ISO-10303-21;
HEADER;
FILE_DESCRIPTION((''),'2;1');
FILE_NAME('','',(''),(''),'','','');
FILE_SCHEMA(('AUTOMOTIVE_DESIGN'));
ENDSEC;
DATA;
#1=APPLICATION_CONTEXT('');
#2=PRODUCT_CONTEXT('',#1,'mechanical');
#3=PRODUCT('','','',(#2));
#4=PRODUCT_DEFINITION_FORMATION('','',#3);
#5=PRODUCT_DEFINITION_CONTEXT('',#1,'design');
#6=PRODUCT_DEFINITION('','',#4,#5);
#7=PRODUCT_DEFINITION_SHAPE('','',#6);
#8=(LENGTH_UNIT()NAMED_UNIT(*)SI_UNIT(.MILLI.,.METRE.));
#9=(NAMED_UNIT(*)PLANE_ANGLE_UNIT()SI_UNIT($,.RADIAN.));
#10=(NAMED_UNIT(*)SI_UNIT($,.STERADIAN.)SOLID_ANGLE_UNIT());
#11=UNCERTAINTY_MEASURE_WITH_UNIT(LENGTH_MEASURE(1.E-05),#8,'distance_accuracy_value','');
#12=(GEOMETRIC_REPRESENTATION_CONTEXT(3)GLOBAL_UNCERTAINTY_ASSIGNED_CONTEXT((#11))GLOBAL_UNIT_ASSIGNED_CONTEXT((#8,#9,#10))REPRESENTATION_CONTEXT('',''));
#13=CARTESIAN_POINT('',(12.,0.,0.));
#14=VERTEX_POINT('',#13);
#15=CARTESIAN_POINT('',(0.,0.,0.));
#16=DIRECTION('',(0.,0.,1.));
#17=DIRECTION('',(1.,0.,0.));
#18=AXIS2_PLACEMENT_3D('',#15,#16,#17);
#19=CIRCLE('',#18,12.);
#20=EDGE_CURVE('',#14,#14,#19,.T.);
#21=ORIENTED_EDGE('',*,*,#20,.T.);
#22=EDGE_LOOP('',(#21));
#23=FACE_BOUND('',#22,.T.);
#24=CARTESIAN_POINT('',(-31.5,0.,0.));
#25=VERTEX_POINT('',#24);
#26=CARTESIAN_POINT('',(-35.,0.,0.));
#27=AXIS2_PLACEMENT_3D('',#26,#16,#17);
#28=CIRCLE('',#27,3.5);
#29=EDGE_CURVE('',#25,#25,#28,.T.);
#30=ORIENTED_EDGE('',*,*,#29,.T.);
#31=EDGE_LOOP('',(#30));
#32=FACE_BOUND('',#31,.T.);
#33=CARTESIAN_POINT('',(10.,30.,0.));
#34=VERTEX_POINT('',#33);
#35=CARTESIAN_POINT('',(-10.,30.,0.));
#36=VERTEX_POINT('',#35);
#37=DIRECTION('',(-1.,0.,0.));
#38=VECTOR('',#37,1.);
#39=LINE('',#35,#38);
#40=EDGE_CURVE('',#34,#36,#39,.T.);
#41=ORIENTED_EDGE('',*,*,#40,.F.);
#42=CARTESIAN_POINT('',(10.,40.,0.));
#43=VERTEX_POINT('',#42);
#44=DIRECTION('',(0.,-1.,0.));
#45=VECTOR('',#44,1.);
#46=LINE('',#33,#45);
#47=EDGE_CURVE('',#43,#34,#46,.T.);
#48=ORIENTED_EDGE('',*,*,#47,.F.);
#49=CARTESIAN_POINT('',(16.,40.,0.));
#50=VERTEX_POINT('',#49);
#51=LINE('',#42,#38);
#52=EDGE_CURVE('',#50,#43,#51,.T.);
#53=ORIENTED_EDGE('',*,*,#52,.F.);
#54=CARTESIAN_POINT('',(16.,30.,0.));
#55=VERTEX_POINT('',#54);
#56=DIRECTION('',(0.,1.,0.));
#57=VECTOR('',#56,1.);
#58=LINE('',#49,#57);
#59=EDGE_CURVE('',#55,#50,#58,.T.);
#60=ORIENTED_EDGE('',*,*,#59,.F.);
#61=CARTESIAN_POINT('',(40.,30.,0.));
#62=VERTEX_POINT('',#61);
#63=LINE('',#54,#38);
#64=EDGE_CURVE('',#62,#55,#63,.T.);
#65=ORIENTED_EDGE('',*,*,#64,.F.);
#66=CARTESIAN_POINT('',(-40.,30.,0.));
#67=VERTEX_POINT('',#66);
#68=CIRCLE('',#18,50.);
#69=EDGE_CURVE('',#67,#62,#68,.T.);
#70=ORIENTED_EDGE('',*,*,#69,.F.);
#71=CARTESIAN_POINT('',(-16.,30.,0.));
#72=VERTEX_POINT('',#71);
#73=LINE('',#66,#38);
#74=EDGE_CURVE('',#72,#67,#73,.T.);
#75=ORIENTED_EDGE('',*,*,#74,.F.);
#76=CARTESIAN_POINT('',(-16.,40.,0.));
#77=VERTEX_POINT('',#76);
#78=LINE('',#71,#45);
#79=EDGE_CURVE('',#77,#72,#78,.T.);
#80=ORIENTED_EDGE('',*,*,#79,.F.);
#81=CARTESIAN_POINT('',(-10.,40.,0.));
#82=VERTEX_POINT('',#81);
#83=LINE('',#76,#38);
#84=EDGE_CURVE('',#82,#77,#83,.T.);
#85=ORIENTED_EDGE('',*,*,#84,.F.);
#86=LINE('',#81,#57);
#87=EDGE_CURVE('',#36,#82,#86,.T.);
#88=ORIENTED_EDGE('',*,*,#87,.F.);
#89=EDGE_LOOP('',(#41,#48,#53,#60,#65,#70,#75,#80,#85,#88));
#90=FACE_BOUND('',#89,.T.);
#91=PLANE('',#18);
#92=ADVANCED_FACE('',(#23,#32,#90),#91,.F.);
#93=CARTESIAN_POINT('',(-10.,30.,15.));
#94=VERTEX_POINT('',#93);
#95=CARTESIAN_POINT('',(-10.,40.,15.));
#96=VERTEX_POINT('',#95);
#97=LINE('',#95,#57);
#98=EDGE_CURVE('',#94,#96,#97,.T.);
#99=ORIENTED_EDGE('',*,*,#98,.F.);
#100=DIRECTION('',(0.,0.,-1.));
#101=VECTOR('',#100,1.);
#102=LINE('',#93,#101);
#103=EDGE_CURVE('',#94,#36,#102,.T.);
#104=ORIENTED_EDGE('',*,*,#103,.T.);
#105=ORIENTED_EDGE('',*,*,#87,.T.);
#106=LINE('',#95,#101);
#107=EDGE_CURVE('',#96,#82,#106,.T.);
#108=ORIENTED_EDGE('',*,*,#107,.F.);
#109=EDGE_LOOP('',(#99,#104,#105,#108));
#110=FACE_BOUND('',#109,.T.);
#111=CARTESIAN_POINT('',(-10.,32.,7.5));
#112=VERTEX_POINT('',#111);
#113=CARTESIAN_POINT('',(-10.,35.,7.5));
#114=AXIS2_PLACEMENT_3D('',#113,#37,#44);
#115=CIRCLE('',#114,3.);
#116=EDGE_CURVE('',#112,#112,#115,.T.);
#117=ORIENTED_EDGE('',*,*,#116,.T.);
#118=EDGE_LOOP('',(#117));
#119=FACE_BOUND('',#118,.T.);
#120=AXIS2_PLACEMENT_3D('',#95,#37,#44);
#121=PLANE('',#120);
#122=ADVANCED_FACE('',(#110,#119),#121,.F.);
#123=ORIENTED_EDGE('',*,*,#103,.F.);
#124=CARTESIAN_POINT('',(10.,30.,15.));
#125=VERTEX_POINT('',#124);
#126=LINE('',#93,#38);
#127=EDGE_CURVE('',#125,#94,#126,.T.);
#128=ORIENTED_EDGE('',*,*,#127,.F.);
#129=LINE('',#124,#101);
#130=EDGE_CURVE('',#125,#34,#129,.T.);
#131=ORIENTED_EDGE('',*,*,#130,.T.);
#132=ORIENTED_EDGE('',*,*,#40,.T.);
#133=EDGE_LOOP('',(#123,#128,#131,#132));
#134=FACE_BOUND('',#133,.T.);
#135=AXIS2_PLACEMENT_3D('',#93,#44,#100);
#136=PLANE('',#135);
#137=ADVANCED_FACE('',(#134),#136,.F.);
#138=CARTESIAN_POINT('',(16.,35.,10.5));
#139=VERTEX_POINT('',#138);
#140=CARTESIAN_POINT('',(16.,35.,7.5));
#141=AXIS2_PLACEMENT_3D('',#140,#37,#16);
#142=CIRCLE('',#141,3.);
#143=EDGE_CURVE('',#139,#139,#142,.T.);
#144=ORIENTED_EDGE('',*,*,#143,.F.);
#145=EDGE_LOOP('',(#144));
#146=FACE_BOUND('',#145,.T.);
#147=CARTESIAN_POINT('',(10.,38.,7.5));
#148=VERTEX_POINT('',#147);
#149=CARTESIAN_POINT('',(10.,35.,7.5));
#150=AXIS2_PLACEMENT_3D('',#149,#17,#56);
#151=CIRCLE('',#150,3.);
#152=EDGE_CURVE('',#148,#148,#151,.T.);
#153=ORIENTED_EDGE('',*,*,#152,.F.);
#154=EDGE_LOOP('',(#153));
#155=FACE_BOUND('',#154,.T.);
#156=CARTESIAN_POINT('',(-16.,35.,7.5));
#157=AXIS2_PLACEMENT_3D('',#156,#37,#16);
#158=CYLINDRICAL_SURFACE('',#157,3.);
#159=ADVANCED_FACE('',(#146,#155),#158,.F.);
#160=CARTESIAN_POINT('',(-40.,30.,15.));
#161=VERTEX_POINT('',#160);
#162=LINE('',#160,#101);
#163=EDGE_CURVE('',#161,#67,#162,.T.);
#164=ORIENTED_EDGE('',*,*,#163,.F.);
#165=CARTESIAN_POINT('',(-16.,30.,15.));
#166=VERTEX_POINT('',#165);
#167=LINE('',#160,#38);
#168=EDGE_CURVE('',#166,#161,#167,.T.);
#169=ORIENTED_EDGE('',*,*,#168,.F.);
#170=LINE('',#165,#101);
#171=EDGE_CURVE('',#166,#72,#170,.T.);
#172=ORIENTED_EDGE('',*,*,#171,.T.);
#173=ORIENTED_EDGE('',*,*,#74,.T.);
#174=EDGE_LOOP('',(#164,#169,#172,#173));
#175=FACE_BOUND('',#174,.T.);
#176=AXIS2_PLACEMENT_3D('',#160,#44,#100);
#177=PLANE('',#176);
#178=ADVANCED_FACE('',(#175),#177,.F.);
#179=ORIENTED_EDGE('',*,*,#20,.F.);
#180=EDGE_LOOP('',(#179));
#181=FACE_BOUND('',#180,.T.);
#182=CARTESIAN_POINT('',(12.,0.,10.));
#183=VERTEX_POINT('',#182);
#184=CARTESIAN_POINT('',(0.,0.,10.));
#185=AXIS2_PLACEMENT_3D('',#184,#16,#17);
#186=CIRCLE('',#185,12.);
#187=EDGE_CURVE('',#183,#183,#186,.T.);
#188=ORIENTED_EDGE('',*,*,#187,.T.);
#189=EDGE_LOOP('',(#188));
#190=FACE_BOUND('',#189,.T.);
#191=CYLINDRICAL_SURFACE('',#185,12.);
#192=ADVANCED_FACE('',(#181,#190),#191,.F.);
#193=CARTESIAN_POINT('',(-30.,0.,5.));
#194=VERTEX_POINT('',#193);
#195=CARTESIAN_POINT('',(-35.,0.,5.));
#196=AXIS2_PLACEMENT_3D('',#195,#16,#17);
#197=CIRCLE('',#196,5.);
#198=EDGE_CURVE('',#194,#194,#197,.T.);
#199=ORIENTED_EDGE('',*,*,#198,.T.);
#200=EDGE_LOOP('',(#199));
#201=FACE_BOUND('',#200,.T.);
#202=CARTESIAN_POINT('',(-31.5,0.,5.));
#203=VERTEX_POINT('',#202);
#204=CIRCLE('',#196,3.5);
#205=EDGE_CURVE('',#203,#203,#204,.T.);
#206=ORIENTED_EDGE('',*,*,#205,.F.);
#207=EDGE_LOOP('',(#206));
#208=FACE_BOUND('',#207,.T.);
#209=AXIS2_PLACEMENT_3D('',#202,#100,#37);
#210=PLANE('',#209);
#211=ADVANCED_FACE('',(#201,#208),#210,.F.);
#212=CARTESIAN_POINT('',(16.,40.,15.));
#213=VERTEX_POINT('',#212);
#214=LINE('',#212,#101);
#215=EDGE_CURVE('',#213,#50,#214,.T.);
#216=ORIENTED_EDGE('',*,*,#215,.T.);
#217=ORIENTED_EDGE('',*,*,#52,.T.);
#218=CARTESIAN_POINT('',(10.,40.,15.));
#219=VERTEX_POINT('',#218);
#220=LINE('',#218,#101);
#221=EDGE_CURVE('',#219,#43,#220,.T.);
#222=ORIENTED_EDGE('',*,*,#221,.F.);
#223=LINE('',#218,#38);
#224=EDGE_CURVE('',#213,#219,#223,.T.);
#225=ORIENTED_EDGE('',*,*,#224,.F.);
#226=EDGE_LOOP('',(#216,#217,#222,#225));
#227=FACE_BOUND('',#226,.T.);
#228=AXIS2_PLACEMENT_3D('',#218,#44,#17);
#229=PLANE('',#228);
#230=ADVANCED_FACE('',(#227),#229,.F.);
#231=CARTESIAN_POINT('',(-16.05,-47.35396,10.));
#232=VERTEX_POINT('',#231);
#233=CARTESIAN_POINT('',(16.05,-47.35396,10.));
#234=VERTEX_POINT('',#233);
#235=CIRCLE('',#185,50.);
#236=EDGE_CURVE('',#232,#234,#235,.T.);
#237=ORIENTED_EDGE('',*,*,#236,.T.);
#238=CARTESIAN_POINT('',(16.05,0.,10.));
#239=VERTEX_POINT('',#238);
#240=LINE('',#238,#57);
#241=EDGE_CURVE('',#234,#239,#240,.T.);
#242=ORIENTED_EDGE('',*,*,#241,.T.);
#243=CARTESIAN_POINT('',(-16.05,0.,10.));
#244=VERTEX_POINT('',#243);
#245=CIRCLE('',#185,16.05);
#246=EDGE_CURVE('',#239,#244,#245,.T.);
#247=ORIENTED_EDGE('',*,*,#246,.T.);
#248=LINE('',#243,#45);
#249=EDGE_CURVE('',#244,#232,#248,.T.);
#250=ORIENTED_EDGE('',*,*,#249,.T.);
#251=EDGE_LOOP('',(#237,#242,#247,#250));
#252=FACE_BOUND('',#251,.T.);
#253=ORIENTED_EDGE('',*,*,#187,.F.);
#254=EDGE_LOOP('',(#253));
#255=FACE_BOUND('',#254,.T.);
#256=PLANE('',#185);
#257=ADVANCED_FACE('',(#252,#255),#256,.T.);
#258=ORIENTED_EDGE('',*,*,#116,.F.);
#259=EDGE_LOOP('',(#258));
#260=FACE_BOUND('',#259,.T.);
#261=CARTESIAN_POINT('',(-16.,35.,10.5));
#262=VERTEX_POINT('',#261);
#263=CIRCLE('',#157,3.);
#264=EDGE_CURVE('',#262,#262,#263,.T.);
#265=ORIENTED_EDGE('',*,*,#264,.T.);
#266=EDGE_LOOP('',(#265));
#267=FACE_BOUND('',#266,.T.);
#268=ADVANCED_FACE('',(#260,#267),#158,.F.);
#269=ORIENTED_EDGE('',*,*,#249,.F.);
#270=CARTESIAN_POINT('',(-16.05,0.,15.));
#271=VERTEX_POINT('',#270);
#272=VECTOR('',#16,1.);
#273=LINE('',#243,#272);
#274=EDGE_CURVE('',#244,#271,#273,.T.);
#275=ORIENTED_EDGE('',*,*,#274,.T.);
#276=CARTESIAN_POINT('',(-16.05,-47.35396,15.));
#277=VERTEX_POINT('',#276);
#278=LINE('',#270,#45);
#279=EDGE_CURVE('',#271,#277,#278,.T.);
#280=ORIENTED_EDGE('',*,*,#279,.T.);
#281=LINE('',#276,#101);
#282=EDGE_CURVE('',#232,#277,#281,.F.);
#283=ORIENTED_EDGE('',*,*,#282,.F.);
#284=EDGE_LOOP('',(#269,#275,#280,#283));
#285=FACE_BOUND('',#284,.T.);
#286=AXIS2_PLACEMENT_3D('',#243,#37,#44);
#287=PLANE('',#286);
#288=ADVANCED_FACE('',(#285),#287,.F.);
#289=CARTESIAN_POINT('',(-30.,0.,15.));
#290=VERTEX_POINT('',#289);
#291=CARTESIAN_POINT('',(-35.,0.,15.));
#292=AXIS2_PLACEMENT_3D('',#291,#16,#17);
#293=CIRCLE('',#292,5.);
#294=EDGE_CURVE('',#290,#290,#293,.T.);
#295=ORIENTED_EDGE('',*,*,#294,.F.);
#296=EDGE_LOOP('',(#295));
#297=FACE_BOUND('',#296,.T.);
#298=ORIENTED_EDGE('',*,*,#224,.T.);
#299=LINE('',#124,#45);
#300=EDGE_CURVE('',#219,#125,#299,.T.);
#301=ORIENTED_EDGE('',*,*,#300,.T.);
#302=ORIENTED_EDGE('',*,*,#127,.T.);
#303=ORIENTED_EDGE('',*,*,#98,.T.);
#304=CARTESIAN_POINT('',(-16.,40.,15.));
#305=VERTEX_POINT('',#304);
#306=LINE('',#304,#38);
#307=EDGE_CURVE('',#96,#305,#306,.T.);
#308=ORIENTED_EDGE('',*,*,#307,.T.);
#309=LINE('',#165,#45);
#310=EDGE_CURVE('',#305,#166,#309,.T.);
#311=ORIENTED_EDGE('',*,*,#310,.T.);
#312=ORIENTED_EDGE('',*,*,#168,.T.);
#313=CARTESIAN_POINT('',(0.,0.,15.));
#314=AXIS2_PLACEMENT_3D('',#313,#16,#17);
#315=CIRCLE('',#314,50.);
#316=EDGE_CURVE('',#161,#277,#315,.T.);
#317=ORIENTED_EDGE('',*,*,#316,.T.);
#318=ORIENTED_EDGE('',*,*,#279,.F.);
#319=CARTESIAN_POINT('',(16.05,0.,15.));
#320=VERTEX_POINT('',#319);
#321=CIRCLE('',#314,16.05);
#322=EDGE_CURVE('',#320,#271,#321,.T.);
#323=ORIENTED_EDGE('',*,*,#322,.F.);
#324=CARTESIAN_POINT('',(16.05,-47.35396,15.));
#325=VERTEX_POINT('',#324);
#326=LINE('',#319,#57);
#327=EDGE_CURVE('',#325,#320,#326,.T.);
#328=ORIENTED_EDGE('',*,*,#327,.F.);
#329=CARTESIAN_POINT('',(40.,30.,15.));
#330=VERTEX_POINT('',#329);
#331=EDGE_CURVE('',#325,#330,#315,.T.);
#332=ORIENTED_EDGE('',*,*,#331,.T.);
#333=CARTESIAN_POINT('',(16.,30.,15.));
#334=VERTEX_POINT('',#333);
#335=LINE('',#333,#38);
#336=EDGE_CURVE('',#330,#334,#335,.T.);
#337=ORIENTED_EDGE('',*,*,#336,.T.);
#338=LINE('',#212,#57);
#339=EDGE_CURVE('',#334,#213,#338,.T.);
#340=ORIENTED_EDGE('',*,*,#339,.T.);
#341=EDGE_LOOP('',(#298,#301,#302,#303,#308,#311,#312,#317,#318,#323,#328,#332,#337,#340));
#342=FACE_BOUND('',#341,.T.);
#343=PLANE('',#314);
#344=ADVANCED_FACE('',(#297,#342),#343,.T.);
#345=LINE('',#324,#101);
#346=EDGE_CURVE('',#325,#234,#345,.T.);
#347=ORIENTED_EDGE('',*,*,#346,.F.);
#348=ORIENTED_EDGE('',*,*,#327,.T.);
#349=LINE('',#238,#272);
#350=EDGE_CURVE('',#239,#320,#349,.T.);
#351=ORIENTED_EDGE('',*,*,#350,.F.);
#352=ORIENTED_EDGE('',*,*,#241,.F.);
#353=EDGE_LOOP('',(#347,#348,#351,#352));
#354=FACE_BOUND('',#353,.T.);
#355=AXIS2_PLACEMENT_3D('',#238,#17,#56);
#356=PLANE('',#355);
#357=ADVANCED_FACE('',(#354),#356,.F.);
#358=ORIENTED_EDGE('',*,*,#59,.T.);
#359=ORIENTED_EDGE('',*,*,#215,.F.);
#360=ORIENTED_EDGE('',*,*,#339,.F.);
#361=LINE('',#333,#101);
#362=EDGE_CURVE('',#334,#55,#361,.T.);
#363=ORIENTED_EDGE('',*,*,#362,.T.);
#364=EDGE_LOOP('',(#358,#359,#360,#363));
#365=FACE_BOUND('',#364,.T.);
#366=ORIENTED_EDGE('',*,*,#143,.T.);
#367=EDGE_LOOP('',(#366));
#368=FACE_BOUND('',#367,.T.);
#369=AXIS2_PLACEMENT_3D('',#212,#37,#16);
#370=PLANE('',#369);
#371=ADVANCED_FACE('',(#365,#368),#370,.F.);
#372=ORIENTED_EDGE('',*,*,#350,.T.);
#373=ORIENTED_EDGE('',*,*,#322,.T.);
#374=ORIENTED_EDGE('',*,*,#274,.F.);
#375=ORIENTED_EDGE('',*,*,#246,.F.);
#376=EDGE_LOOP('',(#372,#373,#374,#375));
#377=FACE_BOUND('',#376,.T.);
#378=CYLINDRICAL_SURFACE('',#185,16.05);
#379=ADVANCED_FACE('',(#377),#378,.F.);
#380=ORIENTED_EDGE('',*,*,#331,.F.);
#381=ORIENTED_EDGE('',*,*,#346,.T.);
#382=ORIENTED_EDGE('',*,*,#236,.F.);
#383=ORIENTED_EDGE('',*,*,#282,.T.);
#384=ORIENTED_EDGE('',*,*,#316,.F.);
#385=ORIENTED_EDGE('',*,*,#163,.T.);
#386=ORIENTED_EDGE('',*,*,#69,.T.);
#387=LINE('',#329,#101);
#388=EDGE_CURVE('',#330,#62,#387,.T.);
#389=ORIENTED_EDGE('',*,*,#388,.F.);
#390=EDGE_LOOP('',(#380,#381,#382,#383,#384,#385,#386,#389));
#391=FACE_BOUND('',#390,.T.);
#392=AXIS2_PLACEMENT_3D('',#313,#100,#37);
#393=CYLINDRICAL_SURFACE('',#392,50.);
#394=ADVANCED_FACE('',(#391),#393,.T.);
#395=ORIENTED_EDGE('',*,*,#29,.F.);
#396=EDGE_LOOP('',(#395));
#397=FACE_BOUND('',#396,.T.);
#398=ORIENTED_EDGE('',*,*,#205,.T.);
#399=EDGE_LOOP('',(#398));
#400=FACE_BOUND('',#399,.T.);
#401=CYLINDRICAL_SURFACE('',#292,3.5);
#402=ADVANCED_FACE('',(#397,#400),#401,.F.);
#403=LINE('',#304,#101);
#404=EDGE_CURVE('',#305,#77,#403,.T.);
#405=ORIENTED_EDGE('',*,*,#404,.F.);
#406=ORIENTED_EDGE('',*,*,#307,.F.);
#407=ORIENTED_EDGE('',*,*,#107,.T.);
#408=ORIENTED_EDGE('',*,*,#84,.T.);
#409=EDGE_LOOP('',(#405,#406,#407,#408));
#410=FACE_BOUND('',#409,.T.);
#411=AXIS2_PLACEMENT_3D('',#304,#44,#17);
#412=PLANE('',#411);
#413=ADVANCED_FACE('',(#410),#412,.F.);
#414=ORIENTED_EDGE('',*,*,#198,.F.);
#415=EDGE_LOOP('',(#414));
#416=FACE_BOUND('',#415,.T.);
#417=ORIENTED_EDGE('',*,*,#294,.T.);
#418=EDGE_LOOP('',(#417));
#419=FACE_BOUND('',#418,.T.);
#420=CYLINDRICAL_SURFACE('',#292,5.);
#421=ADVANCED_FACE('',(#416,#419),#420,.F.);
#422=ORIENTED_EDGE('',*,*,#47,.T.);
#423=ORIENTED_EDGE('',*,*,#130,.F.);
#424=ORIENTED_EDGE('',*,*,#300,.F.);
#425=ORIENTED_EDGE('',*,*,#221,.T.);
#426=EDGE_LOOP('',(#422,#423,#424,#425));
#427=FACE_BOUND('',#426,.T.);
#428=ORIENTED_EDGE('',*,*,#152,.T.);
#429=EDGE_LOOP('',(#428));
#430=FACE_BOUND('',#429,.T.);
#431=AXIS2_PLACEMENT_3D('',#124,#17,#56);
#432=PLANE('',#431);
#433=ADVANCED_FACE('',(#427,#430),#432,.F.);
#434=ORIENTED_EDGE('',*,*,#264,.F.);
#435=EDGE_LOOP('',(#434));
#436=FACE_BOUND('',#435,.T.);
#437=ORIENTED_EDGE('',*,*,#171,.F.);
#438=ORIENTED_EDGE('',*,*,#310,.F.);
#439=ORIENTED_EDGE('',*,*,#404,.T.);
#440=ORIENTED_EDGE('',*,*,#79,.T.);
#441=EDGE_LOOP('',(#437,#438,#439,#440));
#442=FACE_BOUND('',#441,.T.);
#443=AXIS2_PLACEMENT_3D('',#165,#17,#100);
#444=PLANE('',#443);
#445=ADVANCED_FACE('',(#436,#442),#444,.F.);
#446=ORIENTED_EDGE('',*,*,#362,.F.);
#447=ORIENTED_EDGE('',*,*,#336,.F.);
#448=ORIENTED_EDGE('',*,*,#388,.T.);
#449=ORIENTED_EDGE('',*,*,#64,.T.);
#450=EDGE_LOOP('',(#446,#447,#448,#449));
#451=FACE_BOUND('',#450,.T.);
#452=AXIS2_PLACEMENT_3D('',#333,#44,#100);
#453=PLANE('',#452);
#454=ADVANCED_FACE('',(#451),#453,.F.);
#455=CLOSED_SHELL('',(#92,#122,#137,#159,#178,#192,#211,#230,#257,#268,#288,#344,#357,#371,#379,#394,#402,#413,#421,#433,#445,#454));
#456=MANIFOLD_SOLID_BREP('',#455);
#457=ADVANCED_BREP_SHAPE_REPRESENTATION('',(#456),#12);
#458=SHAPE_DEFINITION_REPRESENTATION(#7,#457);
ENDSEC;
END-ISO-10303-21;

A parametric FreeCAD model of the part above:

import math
import FreeCAD as App
import Part
import Sketcher

doc = App.newDocument("Part")
body = doc.addObject("PartDesign::Body", "Body")

sketch1 = body.newObject("Sketcher::SketchObject", "Sketch")
sketch1.AttachmentSupport = (doc.getObject("XY_Plane"), [""])
sketch1.MapMode = "FlatFace"
sketch1.addGeometry([
    Part.LineSegment(App.Vector(-16, 30, 0), App.Vector(-40, 30, 0)),
    Part.ArcOfCircle(Part.Circle(App.Vector(0, 0, 0), App.Vector(0, 0, 1), 50), math.radians(143.130102), math.radians(396.869898)),
    Part.LineSegment(App.Vector(40, 30, 0), App.Vector(16, 30, 0)),
    Part.LineSegment(App.Vector(16, 30, 0), App.Vector(16, 40, 0)),
    Part.LineSegment(App.Vector(16, 40, 0), App.Vector(10, 40, 0)),
    Part.LineSegment(App.Vector(10, 40, 0), App.Vector(10, 30, 0)),
    Part.LineSegment(App.Vector(10, 30, 0), App.Vector(-10, 30, 0)),
    Part.LineSegment(App.Vector(-10, 30, 0), App.Vector(-10, 40, 0)),
    Part.LineSegment(App.Vector(-10, 40, 0), App.Vector(-16, 40, 0)),
    Part.LineSegment(App.Vector(-16, 40, 0), App.Vector(-16, 30, 0)),
], False)
sketch1.addConstraint([
    Sketcher.Constraint("Coincident", 0, 2, 1, 1),
    Sketcher.Constraint("Coincident", 1, 2, 2, 1),
    Sketcher.Constraint("Coincident", 2, 2, 3, 1),
    Sketcher.Constraint("Coincident", 3, 2, 4, 1),
    Sketcher.Constraint("Coincident", 4, 2, 5, 1),
    Sketcher.Constraint("Coincident", 5, 2, 6, 1),
    Sketcher.Constraint("Coincident", 6, 2, 7, 1),
    Sketcher.Constraint("Coincident", 7, 2, 8, 1),
    Sketcher.Constraint("Coincident", 8, 2, 9, 1),
    Sketcher.Constraint("Coincident", 9, 2, 0, 1),
    Sketcher.Constraint("Horizontal", 0),
    Sketcher.Constraint("Horizontal", 2),
    Sketcher.Constraint("Vertical", 3),
    Sketcher.Constraint("Horizontal", 4),
    Sketcher.Constraint("Vertical", 5),
    Sketcher.Constraint("Horizontal", 6),
    Sketcher.Constraint("Vertical", 7),
    Sketcher.Constraint("Horizontal", 8),
    Sketcher.Constraint("Vertical", 9),
    Sketcher.Constraint("Coincident", 1, 3, -1, 1),
    Sketcher.Constraint("Symmetric", 4, 2, 7, 2, -2),
    Sketcher.Constraint("Symmetric", 2, 2, 9, 2, -2),
    Sketcher.Constraint("Horizontal", 2, 2, 5, 2),
    Sketcher.Constraint("Radius", 1, 50.0),
    Sketcher.Constraint("DistanceX", 0, 2, 0, 1, 24.0),
    Sketcher.Constraint("DistanceX", 4, 2, 4, 1, 6.0),
    Sketcher.Constraint("DistanceX", 6, 2, 6, 1, 20.0),
    Sketcher.Constraint("DistanceY", 3, 1, 3, 2, 10.0),
])
pad1 = body.newObject("PartDesign::Pad", "Pad")
pad1.Profile = sketch1
pad1.Length = 15

sketch2 = body.newObject("Sketcher::SketchObject", "Sketch001")
sketch2.AttachmentSupport = (doc.getObject("XY_Plane"), [""])
sketch2.MapMode = "FlatFace"
sketch2.AttachmentOffset = App.Placement(App.Vector(0, 0, 15), App.Rotation())
sketch2.addGeometry([
    Part.LineSegment(App.Vector(-16.05, 0, 0), App.Vector(-16.05, -50, 0)),
    Part.LineSegment(App.Vector(-16.05, -50, 0), App.Vector(16.05, -50, 0)),
    Part.LineSegment(App.Vector(16.05, -50, 0), App.Vector(16.05, 0, 0)),
    Part.ArcOfCircle(Part.Circle(App.Vector(0, 0, 0), App.Vector(0, 0, 1), 16.05), math.radians(0), math.radians(180)),
], False)
sketch2.addConstraint([
    Sketcher.Constraint("Coincident", 0, 2, 1, 1),
    Sketcher.Constraint("Coincident", 1, 2, 2, 1),
    Sketcher.Constraint("Tangent", 2, 2, 3, 1),
    Sketcher.Constraint("Tangent", 3, 2, 0, 1),
    Sketcher.Constraint("Vertical", 0),
    Sketcher.Constraint("Horizontal", 1),
    Sketcher.Constraint("Vertical", 2),
    Sketcher.Constraint("Coincident", 3, 3, -1, 1),
    Sketcher.Constraint("DistanceY", 0, 2, 0, 1, 50.0),
    Sketcher.Constraint("Radius", 3, 16.05),
])
pocket1 = body.newObject("PartDesign::Pocket", "Pocket")
pocket1.Profile = sketch2
pocket1.Length = 5

sketch3 = body.newObject("Sketcher::SketchObject", "Sketch002")
sketch3.AttachmentSupport = (doc.getObject("YZ_Plane"), [""])
sketch3.MapMode = "FlatFace"
sketch3.AttachmentOffset = App.Placement(App.Vector(0, 0, -16), App.Rotation())
sketch3.addGeometry(Part.Circle(App.Vector(35, 7.5, 0), App.Vector(0, 0, 1), 3), False)
sketch3.addConstraint([
    Sketcher.Constraint("Diameter", 0, 6.0),
    Sketcher.Constraint("DistanceX", -1, 1, 0, 3, 35.0),
    Sketcher.Constraint("DistanceY", -1, 1, 0, 3, 7.5),
])
doc.recompute()
hole = body.newObject("PartDesign::Hole", "Hole")
hole.Profile = sketch3
hole.ThreadType = "None"
hole.Diameter = 6
hole.DepthType = "ThroughAll"
hole.Reversed = True

sketch4 = body.newObject("Sketcher::SketchObject", "Sketch003")
sketch4.AttachmentSupport = (doc.getObject("XY_Plane"), [""])
sketch4.MapMode = "FlatFace"
sketch4.AttachmentOffset = App.Placement(App.Vector(0, 0, 15), App.Rotation())
sketch4.addGeometry(Part.Circle(App.Vector(-35, 0, 0), App.Vector(0, 0, 1), 3.5), False)
sketch4.addConstraint([
    Sketcher.Constraint("PointOnObject", 0, 3, -1),
    Sketcher.Constraint("Diameter", 0, 7.0),
    Sketcher.Constraint("DistanceX", 0, 3, -1, 1, 35.0),
])
doc.recompute()
hole2 = body.newObject("PartDesign::Hole", "Hole001")
hole2.Profile = sketch4
hole2.ThreadType = "None"
hole2.Diameter = 7
hole2.DepthType = "ThroughAll"
hole2.HoleCutType = "Counterbore"
hole2.HoleCutDiameter = 10
hole2.HoleCutDepth = 10

sketch5 = body.newObject("Sketcher::SketchObject", "Sketch004")
sketch5.AttachmentSupport = (doc.getObject("XY_Plane"), [""])
sketch5.MapMode = "FlatFace"
sketch5.AttachmentOffset = App.Placement(App.Vector(0, 0, 10), App.Rotation())
sketch5.addGeometry(Part.Circle(App.Vector(0, 0, 0), App.Vector(0, 0, 1), 12), False)
sketch5.addConstraint([
    Sketcher.Constraint("Coincident", 0, 3, -1, 1),
    Sketcher.Constraint("Diameter", 0, 24.0),
])
doc.recompute()
hole3 = body.newObject("PartDesign::Hole", "Hole002")
hole3.Profile = sketch5
hole3.ThreadType = "None"
hole3.Diameter = 24
hole3.DepthType = "ThroughAll"

doc.recompute()
